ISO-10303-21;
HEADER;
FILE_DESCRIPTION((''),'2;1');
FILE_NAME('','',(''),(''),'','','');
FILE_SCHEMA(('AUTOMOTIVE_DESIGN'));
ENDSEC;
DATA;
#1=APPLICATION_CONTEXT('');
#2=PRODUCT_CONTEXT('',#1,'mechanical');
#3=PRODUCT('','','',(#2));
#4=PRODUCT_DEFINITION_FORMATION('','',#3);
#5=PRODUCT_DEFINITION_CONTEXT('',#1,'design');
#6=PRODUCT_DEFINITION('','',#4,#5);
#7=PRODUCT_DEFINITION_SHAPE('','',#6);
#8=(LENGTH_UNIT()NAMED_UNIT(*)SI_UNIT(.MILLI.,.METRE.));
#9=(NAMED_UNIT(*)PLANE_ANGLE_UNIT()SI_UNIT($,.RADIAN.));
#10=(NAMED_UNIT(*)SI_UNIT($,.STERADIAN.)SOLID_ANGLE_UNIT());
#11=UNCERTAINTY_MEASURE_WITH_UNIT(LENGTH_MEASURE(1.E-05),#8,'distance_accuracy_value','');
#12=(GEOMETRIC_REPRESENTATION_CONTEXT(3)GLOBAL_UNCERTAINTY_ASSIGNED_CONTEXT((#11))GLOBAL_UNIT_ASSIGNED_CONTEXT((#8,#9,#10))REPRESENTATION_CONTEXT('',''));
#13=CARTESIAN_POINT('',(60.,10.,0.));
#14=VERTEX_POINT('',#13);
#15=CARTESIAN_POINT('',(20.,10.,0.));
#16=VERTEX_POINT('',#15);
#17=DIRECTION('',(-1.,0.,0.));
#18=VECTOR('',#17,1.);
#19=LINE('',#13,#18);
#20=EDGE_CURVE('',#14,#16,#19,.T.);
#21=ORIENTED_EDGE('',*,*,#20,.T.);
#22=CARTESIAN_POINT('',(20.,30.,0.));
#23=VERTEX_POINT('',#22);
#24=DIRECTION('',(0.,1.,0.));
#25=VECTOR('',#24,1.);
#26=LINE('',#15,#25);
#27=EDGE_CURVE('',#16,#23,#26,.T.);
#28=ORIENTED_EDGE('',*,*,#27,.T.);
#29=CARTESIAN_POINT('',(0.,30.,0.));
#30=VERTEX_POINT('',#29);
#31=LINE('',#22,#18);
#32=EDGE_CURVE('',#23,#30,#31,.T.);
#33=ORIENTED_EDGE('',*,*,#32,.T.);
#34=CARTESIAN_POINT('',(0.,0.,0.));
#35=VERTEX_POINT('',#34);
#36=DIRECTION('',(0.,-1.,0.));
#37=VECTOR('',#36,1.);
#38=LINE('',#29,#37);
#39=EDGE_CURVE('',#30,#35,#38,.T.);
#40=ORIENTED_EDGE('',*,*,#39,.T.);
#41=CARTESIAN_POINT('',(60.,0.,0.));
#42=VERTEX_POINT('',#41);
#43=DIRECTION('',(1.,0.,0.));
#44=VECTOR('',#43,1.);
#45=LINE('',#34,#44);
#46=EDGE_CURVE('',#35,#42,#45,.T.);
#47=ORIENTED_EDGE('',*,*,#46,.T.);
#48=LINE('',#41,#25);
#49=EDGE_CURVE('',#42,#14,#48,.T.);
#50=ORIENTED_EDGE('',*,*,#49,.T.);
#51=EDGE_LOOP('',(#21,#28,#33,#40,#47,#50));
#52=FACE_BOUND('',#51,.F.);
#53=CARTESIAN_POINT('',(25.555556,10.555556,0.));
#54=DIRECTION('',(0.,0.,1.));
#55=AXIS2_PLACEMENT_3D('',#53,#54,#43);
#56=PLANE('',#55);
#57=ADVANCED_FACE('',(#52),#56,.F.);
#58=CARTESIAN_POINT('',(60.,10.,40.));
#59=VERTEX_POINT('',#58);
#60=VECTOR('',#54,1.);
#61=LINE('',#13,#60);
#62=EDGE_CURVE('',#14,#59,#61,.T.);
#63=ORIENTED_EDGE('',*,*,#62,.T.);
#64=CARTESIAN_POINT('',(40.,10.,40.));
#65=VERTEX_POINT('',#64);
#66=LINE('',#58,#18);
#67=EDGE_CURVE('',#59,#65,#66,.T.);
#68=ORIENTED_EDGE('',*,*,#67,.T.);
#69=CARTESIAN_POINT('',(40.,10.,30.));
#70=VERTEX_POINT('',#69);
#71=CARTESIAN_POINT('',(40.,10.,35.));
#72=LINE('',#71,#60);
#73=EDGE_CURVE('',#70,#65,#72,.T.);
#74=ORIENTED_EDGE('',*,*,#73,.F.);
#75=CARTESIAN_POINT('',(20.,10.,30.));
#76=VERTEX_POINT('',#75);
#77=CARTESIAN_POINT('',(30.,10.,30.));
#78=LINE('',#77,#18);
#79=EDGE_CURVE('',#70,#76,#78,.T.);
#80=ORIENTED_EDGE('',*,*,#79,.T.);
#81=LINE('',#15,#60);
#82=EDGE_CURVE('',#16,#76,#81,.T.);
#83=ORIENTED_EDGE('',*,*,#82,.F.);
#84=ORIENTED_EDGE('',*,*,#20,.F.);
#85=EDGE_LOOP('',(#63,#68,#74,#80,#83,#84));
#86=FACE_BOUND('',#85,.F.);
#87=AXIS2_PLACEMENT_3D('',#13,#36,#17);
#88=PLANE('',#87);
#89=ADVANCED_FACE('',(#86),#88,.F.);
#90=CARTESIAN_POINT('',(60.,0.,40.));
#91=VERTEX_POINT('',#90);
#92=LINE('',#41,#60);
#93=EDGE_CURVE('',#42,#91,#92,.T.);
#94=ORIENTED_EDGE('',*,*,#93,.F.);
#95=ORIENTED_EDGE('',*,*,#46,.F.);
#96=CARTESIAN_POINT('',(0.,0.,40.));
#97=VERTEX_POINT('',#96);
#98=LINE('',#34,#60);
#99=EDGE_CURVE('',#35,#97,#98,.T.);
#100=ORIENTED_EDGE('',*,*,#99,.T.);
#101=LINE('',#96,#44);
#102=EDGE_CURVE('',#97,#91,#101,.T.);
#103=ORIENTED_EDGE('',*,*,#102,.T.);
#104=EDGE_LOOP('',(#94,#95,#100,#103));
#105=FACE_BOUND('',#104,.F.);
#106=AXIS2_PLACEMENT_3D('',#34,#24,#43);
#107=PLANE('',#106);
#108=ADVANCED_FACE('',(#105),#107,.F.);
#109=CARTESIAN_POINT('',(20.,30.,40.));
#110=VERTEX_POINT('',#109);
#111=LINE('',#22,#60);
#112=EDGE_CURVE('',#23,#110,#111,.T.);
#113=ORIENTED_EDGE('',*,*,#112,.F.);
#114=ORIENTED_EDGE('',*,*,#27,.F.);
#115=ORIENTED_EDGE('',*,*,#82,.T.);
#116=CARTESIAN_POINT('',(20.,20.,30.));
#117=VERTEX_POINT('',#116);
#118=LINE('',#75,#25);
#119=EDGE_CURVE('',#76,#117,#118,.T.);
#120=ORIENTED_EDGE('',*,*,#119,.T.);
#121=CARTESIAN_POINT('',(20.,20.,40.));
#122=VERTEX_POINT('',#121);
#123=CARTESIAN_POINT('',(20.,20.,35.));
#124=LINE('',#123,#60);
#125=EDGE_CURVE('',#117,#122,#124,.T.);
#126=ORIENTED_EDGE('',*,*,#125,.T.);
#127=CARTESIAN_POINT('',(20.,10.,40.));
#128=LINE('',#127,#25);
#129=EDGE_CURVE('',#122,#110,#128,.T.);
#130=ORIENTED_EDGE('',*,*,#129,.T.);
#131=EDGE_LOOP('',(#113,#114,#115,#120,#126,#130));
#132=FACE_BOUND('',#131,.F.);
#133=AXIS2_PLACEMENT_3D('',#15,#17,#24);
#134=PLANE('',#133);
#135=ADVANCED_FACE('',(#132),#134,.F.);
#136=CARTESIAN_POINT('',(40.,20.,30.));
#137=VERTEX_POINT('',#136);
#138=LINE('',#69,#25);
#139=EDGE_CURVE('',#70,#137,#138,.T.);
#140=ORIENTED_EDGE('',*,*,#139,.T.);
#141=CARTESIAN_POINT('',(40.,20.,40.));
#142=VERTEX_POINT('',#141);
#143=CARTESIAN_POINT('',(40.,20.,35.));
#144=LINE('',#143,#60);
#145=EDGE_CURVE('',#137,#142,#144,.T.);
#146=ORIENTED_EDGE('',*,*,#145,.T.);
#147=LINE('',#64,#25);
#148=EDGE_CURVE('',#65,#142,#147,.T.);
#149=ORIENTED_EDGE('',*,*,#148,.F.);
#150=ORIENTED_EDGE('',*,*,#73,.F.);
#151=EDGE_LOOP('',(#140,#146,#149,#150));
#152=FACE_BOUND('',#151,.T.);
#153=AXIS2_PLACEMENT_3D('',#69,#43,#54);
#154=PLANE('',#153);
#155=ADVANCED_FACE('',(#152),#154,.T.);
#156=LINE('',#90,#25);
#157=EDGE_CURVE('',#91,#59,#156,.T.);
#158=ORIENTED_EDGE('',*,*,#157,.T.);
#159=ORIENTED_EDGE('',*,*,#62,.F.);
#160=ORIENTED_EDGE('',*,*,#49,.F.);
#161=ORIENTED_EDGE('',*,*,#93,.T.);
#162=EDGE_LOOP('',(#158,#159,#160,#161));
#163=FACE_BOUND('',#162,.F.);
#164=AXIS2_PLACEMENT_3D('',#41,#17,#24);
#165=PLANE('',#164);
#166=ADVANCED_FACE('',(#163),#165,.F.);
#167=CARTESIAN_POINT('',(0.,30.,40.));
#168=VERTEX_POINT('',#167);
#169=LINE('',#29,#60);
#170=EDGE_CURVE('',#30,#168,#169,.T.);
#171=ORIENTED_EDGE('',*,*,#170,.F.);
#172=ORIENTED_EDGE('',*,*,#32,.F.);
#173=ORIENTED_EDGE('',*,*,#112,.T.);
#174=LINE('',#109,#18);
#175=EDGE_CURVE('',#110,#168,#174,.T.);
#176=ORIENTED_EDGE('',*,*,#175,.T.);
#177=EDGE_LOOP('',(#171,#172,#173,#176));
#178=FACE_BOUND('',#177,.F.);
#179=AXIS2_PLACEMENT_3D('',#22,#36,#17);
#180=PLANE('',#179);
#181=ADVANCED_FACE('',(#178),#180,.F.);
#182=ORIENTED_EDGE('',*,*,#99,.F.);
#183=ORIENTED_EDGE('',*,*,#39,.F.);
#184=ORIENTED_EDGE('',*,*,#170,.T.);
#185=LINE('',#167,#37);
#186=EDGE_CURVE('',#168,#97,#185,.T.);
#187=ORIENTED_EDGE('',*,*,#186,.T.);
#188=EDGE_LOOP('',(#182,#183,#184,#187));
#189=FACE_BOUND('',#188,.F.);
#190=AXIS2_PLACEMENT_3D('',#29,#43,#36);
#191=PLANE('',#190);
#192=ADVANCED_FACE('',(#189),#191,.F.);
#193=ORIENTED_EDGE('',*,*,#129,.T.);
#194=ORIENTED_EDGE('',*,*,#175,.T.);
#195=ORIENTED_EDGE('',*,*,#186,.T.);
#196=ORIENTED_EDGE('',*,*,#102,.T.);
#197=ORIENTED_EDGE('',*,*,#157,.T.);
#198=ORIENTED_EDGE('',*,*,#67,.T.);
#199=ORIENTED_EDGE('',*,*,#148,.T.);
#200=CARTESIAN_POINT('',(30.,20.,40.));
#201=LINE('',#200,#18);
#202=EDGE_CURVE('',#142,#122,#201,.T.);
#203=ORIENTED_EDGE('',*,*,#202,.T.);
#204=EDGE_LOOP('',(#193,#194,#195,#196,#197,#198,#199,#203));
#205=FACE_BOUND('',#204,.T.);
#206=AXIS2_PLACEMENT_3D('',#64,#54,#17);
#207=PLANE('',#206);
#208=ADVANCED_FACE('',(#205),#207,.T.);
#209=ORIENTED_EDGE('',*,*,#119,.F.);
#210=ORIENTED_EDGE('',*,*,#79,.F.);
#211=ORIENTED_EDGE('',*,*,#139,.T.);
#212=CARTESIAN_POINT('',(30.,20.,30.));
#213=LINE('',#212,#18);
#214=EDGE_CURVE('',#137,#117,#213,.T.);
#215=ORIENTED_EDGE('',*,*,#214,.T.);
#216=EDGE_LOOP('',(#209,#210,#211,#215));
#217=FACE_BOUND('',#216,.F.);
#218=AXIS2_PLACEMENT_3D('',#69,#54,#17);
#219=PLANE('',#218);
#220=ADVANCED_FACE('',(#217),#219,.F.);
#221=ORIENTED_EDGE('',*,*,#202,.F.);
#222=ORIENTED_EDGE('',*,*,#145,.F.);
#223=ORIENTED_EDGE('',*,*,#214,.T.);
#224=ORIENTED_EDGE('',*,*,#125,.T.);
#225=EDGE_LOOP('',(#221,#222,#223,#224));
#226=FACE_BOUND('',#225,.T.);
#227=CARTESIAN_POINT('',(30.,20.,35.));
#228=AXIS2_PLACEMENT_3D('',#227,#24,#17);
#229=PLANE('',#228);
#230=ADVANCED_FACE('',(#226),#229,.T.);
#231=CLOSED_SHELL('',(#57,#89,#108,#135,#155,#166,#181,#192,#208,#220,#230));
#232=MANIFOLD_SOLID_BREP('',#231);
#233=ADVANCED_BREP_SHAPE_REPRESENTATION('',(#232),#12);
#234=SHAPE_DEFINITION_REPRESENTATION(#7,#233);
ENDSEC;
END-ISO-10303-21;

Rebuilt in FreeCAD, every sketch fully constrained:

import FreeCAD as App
import Part
import Sketcher

V = App.Vector
Q = App.Units.Quantity

doc = App.newDocument("Part")
body = doc.addObject("PartDesign::Body", "Body")

# Sketch on XY plane
sketch1 = doc.addObject("Sketcher::SketchObject", "Sketch")
body.addObject(sketch1)
sketch1.AttachmentSupport = (doc.XY_Plane, [""])
sketch1.MapMode = "FlatFace"
sketch1.addGeometry(Part.LineSegment(V(0, 30, 0), V(0, 0, 0)), False)
sketch1.addGeometry(Part.LineSegment(V(0, 0, 0), V(60, 0, 0)), False)
sketch1.addGeometry(Part.LineSegment(V(60, 0, 0), V(60, 10, 0)), False)
sketch1.addGeometry(Part.LineSegment(V(60, 10, 0), V(20, 10, 0)), False)
sketch1.addGeometry(Part.LineSegment(V(20, 10, 0), V(20, 30, 0)), False)
sketch1.addGeometry(Part.LineSegment(V(20, 30, 0), V(0, 30, 0)), False)
sketch1.addConstraint(Sketcher.Constraint("Coincident", 0, 2, 1, 1))
sketch1.addConstraint(Sketcher.Constraint("Coincident", 1, 2, 2, 1))
sketch1.addConstraint(Sketcher.Constraint("Coincident", 2, 2, 3, 1))
sketch1.addConstraint(Sketcher.Constraint("Coincident", 3, 2, 4, 1))
sketch1.addConstraint(Sketcher.Constraint("Coincident", 4, 2, 5, 1))
sketch1.addConstraint(Sketcher.Constraint("Coincident", 5, 2, 0, 1))
sketch1.addConstraint(Sketcher.Constraint("Vertical", 0))
sketch1.addConstraint(Sketcher.Constraint("Horizontal", 1))
sketch1.addConstraint(Sketcher.Constraint("Vertical", 2))
sketch1.addConstraint(Sketcher.Constraint("Horizontal", 3))
sketch1.addConstraint(Sketcher.Constraint("Vertical", 4))
sketch1.addConstraint(Sketcher.Constraint("Horizontal", 5))
sketch1.addConstraint(Sketcher.Constraint("Coincident", 0, 2, -1, 1))
sketch1.addConstraint(Sketcher.Constraint("Equal", 5, 4))
sketch1.addConstraint(Sketcher.Constraint("DistanceX", 1, 1, 1, 2, Q("60 mm")))
sketch1.addConstraint(Sketcher.Constraint("DistanceX", 3, 2, 3, 1, Q("40 mm")))
sketch1.addConstraint(Sketcher.Constraint("DistanceY", 0, 2, 0, 1, Q("30 mm")))
pad1 = doc.addObject("PartDesign::Pad", "Pad")
body.addObject(pad1)
pad1.Profile = sketch1
pad1.Length = 40

# Sketch on XZ plane
sketch2 = doc.addObject("Sketcher::SketchObject", "Sketch001")
body.addObject(sketch2)
sketch2.AttachmentSupport = (doc.XZ_Plane, [""])
sketch2.MapMode = "FlatFace"
sketch2.AttachmentOffset = App.Placement(V(0, 0, -10), App.Rotation())
sketch2.addGeometry(Part.LineSegment(V(40, 40, 0), V(40, 30, 0)), False)
sketch2.addGeometry(Part.LineSegment(V(40, 30, 0), V(20, 30, 0)), False)
sketch2.addGeometry(Part.LineSegment(V(20, 30, 0), V(20, 40, 0)), False)
sketch2.addGeometry(Part.LineSegment(V(20, 40, 0), V(40, 40, 0)), False)
sketch2.addConstraint(Sketcher.Constraint("Coincident", 0, 2, 1, 1))
sketch2.addConstraint(Sketcher.Constraint("Coincident", 1, 2, 2, 1))
sketch2.addConstraint(Sketcher.Constraint("Coincident", 2, 2, 3, 1))
sketch2.addConstraint(Sketcher.Constraint("Coincident", 3, 2, 0, 1))
sketch2.addConstraint(Sketcher.Constraint("Vertical", 0))
sketch2.addConstraint(Sketcher.Constraint("Horizontal", 1))
sketch2.addConstraint(Sketcher.Constraint("Vertical", 2))
sketch2.addConstraint(Sketcher.Constraint("Horizontal", 3))
sketch2.addConstraint(Sketcher.Constraint("DistanceX", 1, 2, 1, 1, Q("20 mm")))
sketch2.addConstraint(Sketcher.Constraint("DistanceY", 0, 2, 0, 1, Q("10 mm")))
sketch2.addConstraint(Sketcher.Constraint("DistanceX", -1, 1, 0, 2, Q("40 mm")))
sketch2.addConstraint(Sketcher.Constraint("DistanceY", -1, 1, 0, 2, Q("30 mm")))
pad2 = doc.addObject("PartDesign::Pad", "Pad001")
body.addObject(pad2)
pad2.Profile = sketch2
pad2.Length = 10
pad2.Reversed = True

doc.recompute()
